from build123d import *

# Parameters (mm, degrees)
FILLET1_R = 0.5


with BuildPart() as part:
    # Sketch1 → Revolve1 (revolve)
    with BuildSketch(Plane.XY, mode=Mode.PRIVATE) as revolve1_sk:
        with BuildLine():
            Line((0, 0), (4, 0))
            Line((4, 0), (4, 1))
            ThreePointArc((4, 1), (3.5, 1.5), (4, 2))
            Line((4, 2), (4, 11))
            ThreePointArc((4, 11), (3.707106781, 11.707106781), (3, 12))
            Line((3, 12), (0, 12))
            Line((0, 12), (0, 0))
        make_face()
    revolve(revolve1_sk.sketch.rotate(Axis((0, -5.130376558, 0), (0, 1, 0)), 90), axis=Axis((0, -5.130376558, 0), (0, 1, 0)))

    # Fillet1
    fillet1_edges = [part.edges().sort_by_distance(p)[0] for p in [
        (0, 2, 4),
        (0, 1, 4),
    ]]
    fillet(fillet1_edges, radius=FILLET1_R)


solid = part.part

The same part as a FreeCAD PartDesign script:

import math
import FreeCAD as App
import Part
import Sketcher

V = App.Vector


def edges_at(feature, points):
    """Names of the edges that pass closest to the given points."""
    edges = feature.Shape.Edges
    near = lambda p: min(range(len(edges)), key=lambda i: edges[i].distToShape(Part.Vertex(*p))[0])
    return sorted({f"Edge{near(p) + 1}" for p in points})

doc = App.newDocument("Part")
body = doc.addObject("PartDesign::Body", "Body")

sketch1 = body.newObject("Sketcher::SketchObject", "Sketch")
sketch1.AttachmentSupport = (doc.getObject("XY_Plane"), [""])
sketch1.MapMode = "FlatFace"
sketch1.addGeometry([
    Part.LineSegment(V(0, 0, 0), V(4, 0, 0)),
    Part.LineSegment(V(4, 0, 0), V(4, 1, 0)),
    Part.ArcOfCircle(Part.Circle(V(4, 1.5, 0), V(0, 0, 1), 0.5), math.radians(90), math.radians(270)),
    Part.LineSegment(V(4, 2, 0), V(4, 11, 0)),
    Part.ArcOfCircle(Part.Circle(V(3, 11, 0), V(0, 0, 1), 1), math.radians(0), math.radians(90)),
    Part.LineSegment(V(3, 12, 0), V(0, 12, 0)),
    Part.LineSegment(V(0, 12, 0), V(0, 0, 0)),
], False)
sketch1.addConstraint([
    Sketcher.Constraint("Coincident", 0, 2, 1, 1),
    Sketcher.Constraint("Coincident", 1, 2, 2, 2),
    Sketcher.Constraint("Coincident", 2, 1, 3, 1),
    Sketcher.Constraint("Tangent", 3, 2, 4, 1),
    Sketcher.Constraint("Tangent", 4, 2, 5, 1),
    Sketcher.Constraint("Coincident", 5, 2, 6, 1),
    Sketcher.Constraint("Coincident", 6, 2, 0, 1),
    Sketcher.Constraint("Horizontal", 0),
    Sketcher.Constraint("Vertical", 1),
    Sketcher.Constraint("Vertical", 3),
    Sketcher.Constraint("Horizontal", 5),
    Sketcher.Constraint("Vertical", 6),
    Sketcher.Constraint("Coincident", 6, 2, -1, 1),
    Sketcher.Constraint("Vertical", 2, 3, 0, 2),
    Sketcher.Constraint("Vertical", 1, 2, 2, 1),
    Sketcher.Constraint("Radius", 4, 1.0),
    Sketcher.Constraint("Radius", 2, 0.5),
    Sketcher.Constraint("DistanceX", 0, 1, 0, 2, 4.0),
    Sketcher.Constraint("DistanceY", 1, 1, 1, 2, 1.0),
    Sketcher.Constraint("DistanceY", 3, 1, 3, 2, 9.0),
])
revolution = body.newObject("PartDesign::Revolution", "Revolution")
revolution.Profile = sketch1
revolution.ReferenceAxis = (sketch1, ["V_Axis"])
revolution.Angle = 360
doc.recompute()

fillet = body.newObject("PartDesign::Fillet", "Fillet")
fillet.Base = (revolution, edges_at(revolution, [(0, 2, 4), (0, 1, 4)]))
fillet.Radius = 0.5

doc.recompute()
